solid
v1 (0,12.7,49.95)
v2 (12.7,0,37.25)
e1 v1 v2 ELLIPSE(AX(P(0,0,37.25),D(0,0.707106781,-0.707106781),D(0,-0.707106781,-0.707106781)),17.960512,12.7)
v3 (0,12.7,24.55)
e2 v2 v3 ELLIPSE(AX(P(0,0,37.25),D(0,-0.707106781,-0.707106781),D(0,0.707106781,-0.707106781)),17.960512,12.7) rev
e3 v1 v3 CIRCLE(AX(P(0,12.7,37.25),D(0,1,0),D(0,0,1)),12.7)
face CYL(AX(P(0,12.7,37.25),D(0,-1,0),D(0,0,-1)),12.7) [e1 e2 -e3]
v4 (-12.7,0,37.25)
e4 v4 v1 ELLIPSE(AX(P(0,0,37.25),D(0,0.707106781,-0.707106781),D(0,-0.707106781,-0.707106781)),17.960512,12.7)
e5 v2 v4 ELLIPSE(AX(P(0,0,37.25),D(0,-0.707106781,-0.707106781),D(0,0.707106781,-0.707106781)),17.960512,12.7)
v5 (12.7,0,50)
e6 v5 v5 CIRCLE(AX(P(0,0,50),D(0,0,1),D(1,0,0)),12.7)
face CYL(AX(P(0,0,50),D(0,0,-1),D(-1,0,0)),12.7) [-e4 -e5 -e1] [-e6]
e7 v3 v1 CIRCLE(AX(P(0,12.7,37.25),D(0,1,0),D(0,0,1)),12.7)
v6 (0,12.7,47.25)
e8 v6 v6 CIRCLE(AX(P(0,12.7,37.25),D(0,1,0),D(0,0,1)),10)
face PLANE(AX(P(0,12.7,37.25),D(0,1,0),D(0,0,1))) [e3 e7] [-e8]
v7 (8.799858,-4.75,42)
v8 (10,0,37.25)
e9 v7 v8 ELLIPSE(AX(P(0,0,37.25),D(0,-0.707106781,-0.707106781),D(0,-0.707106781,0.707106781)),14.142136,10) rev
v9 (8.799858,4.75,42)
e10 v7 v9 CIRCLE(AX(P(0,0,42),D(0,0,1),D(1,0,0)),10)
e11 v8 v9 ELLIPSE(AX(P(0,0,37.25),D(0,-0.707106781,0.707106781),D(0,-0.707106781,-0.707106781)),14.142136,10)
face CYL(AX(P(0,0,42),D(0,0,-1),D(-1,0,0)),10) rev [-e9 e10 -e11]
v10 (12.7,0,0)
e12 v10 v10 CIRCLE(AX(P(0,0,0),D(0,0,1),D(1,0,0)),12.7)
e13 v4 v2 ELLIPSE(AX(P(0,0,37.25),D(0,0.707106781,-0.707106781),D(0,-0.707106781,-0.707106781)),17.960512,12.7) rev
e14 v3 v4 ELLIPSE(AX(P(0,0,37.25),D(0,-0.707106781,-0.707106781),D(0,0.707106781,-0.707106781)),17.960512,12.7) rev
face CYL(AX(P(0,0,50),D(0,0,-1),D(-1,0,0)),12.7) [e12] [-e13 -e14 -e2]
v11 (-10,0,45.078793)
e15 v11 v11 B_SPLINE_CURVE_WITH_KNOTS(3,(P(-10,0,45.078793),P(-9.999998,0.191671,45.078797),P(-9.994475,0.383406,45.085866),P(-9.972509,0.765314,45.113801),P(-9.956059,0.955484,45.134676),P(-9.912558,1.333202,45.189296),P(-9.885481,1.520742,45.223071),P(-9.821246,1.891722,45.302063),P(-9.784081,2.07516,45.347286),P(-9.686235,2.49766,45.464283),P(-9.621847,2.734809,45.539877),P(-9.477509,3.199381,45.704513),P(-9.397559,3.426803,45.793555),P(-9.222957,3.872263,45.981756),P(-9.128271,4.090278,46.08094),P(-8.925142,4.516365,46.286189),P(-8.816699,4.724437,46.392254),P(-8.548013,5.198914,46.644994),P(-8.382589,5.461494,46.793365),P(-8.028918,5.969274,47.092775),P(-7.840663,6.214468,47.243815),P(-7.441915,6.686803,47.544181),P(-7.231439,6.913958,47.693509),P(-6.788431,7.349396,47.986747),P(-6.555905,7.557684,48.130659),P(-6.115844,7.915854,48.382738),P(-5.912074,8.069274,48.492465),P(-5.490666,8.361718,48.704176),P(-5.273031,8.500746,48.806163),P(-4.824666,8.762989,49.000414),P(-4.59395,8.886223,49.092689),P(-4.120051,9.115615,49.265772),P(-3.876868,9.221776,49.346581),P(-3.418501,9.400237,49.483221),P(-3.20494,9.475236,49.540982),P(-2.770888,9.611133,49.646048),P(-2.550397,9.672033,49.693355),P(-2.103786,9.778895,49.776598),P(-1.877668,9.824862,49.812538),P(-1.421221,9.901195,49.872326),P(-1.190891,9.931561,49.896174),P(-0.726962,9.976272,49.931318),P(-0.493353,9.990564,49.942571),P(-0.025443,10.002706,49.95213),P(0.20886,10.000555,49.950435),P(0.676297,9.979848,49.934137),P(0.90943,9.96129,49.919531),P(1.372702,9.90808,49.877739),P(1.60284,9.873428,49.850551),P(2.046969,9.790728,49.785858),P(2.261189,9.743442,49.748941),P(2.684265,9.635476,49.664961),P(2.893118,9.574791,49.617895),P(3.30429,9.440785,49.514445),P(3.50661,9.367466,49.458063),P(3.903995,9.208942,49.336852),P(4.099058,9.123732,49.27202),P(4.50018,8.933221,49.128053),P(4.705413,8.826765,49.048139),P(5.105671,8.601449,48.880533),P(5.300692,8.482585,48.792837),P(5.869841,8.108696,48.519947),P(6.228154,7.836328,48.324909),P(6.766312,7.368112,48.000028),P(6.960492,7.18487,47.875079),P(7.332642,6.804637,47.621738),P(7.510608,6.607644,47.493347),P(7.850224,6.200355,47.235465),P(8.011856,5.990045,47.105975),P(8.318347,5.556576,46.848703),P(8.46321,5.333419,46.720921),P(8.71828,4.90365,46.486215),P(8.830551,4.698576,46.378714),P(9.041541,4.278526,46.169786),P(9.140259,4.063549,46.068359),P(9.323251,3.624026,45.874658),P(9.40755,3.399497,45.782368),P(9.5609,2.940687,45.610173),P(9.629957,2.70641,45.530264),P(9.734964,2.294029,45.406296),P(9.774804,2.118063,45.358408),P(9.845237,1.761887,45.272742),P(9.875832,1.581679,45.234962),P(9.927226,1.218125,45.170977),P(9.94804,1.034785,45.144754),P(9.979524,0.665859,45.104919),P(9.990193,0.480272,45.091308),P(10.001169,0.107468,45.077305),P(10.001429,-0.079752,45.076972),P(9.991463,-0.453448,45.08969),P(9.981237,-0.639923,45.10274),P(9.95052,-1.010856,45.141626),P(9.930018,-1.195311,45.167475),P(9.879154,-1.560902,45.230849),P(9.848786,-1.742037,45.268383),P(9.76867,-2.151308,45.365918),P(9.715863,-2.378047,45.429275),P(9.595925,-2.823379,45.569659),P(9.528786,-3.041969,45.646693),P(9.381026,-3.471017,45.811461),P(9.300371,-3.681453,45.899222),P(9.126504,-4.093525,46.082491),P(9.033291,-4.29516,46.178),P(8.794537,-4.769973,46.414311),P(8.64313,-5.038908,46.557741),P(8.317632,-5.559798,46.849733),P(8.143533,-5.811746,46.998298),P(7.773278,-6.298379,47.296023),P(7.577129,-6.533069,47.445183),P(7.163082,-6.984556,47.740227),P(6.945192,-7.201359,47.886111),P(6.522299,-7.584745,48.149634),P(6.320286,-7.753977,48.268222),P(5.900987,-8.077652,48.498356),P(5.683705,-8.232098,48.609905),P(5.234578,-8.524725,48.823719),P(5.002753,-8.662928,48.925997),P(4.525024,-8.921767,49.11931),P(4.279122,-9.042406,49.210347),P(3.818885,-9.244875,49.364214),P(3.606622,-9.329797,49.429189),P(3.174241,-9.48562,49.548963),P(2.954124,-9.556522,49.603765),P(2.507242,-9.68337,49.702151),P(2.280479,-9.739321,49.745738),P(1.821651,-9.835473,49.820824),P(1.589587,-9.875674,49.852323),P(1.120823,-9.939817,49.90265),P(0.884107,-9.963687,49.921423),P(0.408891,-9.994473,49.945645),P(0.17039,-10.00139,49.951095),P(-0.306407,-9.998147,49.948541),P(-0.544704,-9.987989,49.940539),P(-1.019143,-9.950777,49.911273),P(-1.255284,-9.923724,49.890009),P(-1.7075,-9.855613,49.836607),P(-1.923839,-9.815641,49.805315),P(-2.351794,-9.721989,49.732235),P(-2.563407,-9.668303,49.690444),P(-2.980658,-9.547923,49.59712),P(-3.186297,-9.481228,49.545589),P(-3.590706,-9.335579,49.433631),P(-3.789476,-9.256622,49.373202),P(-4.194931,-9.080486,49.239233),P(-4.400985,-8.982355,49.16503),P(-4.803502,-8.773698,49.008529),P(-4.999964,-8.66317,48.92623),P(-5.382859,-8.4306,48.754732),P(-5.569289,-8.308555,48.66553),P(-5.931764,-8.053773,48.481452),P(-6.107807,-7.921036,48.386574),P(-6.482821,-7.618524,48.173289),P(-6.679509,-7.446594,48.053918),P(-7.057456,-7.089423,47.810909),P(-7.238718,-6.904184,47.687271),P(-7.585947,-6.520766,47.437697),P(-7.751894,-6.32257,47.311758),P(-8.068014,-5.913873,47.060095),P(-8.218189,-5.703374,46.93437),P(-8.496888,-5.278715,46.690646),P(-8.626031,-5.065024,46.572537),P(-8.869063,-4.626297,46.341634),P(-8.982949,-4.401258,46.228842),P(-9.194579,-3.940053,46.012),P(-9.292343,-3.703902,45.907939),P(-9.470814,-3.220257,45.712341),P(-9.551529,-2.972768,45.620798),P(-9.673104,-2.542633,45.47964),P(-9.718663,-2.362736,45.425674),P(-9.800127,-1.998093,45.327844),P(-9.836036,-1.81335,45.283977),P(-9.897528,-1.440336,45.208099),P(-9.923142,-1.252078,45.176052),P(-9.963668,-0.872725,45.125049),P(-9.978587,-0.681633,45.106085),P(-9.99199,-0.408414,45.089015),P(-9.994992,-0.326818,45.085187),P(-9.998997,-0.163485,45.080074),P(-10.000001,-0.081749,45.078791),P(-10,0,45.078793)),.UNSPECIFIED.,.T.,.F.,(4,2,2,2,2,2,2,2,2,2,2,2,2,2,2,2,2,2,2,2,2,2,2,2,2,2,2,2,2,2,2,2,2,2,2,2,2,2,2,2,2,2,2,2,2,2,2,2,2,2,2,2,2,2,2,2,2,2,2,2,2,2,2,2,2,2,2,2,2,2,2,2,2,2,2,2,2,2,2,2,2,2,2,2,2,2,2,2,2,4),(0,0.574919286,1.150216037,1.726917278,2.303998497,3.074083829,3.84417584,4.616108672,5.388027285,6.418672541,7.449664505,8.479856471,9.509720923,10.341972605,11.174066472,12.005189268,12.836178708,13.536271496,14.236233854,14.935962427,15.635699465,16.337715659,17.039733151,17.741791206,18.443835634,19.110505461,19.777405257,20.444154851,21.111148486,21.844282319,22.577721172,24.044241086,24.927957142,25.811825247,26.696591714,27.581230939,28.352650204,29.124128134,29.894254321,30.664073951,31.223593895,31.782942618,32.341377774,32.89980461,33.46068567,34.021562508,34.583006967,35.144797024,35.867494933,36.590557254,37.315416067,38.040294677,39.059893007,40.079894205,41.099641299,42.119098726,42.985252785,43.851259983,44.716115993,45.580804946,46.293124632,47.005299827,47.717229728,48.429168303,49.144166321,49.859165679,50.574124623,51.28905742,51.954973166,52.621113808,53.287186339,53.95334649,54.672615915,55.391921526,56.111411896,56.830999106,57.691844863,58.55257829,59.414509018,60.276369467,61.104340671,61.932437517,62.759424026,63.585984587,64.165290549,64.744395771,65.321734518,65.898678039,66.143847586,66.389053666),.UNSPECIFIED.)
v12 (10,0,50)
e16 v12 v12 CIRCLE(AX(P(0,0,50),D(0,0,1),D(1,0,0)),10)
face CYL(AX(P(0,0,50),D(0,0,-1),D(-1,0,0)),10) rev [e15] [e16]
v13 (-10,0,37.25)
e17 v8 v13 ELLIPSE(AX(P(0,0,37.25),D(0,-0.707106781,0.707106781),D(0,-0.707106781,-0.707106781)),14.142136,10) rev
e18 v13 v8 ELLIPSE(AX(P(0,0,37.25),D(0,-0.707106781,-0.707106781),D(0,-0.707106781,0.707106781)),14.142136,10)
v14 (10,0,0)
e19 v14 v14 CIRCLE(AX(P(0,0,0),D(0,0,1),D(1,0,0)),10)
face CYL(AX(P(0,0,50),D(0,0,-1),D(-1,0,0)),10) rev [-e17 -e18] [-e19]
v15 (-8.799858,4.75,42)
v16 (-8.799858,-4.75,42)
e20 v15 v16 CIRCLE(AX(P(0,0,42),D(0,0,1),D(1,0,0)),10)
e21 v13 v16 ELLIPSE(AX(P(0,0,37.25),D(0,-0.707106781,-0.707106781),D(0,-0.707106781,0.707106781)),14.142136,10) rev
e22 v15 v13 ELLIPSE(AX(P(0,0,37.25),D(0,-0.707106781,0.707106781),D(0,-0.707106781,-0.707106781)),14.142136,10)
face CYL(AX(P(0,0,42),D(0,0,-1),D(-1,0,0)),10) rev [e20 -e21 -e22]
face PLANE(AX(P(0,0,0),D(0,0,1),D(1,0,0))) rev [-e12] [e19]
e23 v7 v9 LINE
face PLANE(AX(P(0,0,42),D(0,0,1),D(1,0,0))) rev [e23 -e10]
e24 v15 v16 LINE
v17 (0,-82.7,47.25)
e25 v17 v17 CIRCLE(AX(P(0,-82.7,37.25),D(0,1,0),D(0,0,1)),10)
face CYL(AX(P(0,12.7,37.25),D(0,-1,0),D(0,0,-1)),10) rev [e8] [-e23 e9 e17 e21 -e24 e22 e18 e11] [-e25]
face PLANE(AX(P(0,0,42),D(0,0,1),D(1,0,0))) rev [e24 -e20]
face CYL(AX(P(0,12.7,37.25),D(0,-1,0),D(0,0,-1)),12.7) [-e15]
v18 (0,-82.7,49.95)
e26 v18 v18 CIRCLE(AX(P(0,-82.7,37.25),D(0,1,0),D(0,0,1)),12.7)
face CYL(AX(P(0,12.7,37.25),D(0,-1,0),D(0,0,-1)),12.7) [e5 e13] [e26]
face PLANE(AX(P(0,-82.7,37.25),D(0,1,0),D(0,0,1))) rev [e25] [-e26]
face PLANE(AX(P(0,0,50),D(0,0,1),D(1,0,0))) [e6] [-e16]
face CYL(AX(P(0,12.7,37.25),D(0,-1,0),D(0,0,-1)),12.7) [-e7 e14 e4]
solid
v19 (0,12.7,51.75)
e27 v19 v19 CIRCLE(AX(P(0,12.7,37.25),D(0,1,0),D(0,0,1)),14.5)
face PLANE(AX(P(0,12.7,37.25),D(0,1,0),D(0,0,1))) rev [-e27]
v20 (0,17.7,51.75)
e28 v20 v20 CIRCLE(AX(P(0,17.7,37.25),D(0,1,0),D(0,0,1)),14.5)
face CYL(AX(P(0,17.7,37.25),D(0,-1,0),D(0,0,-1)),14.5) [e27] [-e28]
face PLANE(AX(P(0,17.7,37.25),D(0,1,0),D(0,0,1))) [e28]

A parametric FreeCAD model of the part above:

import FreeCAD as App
import Part
import Sketcher

doc = App.newDocument("Part")
body = doc.addObject("PartDesign::Body", "Body")

# Sketch on XY plane
sketch1 = doc.addObject("Sketcher::SketchObject", "Sketch")
body.addObject(sketch1)
sketch1.AttachmentSupport = (doc.XY_Plane, [""])
sketch1.MapMode = "FlatFace"
sketch1.addGeometry(Part.Circle(App.Vector(0, 0, 0), App.Vector(0, 0, 1), 13), False)
sketch1.addGeometry(Part.Circle(App.Vector(0, 0, 0), App.Vector(0, 0, 1), 10), False)
sketch1.addConstraint(Sketcher.Constraint("Coincident", 0, 3, -1, 1))
sketch1.addConstraint(Sketcher.Constraint("Coincident", 1, 3, -1, 1))
sketch1.addConstraint(Sketcher.Constraint("Diameter", 1, 20.0))
sketch1.addConstraint(Sketcher.Constraint("Diameter", 0, 25.4))
pad1 = doc.addObject("PartDesign::Pad", "Pad")
body.addObject(pad1)
pad1.Profile = sketch1
pad1.Length = 50

# Sketch on XZ plane
sketch2 = doc.addObject("Sketcher::SketchObject", "Sketch001")
body.addObject(sketch2)
sketch2.AttachmentSupport = (doc.XZ_Plane, [""])
sketch2.MapMode = "FlatFace"
sketch2.AttachmentOffset = App.Placement(App.Vector(0, 0, 12.7), App.Rotation())
sketch2.addGeometry(Part.Circle(App.Vector(0, 37, 0), App.Vector(0, 0, 1), 13), False)
sketch2.addConstraint(Sketcher.Constraint("PointOnObject", 0, 3, -2))
sketch2.addConstraint(Sketcher.Constraint("Diameter", 0, 25.4))
sketch2.addConstraint(Sketcher.Constraint("DistanceY", -1, 1, 0, 3, 37.25))
pad2 = doc.addObject("PartDesign::Pad", "Pad001")
body.addObject(pad2)
pad2.Profile = sketch2
pad2.Type = "TwoLengths"
pad2.Length = 25.4
pad2.Length2 = 70
pad2.Reversed = True

# Sketch on XZ plane
sketch3 = doc.addObject("Sketcher::SketchObject", "Sketch002")
body.addObject(sketch3)
sketch3.AttachmentSupport = (doc.XZ_Plane, [""])
sketch3.MapMode = "FlatFace"
sketch3.AttachmentOffset = App.Placement(App.Vector(0, 0, 12.7), App.Rotation())
sketch3.addGeometry(Part.Circle(App.Vector(0, 37, 0), App.Vector(0, 0, 1), 10), False)
sketch3.addConstraint(Sketcher.Constraint("PointOnObject", 0, 3, -2))
sketch3.addConstraint(Sketcher.Constraint("Diameter", 0, 20.0))
sketch3.addConstraint(Sketcher.Constraint("DistanceY", -1, 1, 0, 3, 37.25))
pocket1 = doc.addObject("PartDesign::Pocket", "Pocket")
body.addObject(pocket1)
pocket1.Profile = sketch3
pocket1.Type = "ThroughAll"
pocket1.Midplane = True

# Sketch on XY plane
sketch4 = doc.addObject("Sketcher::SketchObject", "Sketch003")
body.addObject(sketch4)
sketch4.AttachmentSupport = (doc.XY_Plane, [""])
sketch4.MapMode = "FlatFace"
sketch4.addGeometry(Part.Circle(App.Vector(0, 0, 0), App.Vector(0, 0, 1), 10), False)
sketch4.addConstraint(Sketcher.Constraint("Coincident", 0, 3, -1, 1))
sketch4.addConstraint(Sketcher.Constraint("Diameter", 0, 20.0))
pocket2 = doc.addObject("PartDesign::Pocket", "Pocket001")
body.addObject(pocket2)
pocket2.Profile = sketch4
pocket2.Length = 42
pocket2.Reversed = True
body2 = doc.addObject("PartDesign::Body", "Body001")

# Sketch on XZ plane
sketch5 = doc.addObject("Sketcher::SketchObject", "Sketch004")
body2.addObject(sketch5)
sketch5.AttachmentSupport = (doc.getObject("XZ_Plane001"), [""])
sketch5.MapMode = "FlatFace"
sketch5.AttachmentOffset = App.Placement(App.Vector(0, 0, -12.7), App.Rotation())
sketch5.addGeometry(Part.Circle(App.Vector(0, 37, 0), App.Vector(0, 0, 1), 14), False)
sketch5.addConstraint(Sketcher.Constraint("PointOnObject", 0, 3, -2))
sketch5.addConstraint(Sketcher.Constraint("Diameter", 0, 29.0))
sketch5.addConstraint(Sketcher.Constraint("DistanceY", -1, 1, 0, 3, 37.25))
pad3 = doc.addObject("PartDesign::Pad", "Pad002")
body2.addObject(pad3)
pad3.Profile = sketch5
pad3.Length = 5
pad3.Reversed = True

doc.recompute()
